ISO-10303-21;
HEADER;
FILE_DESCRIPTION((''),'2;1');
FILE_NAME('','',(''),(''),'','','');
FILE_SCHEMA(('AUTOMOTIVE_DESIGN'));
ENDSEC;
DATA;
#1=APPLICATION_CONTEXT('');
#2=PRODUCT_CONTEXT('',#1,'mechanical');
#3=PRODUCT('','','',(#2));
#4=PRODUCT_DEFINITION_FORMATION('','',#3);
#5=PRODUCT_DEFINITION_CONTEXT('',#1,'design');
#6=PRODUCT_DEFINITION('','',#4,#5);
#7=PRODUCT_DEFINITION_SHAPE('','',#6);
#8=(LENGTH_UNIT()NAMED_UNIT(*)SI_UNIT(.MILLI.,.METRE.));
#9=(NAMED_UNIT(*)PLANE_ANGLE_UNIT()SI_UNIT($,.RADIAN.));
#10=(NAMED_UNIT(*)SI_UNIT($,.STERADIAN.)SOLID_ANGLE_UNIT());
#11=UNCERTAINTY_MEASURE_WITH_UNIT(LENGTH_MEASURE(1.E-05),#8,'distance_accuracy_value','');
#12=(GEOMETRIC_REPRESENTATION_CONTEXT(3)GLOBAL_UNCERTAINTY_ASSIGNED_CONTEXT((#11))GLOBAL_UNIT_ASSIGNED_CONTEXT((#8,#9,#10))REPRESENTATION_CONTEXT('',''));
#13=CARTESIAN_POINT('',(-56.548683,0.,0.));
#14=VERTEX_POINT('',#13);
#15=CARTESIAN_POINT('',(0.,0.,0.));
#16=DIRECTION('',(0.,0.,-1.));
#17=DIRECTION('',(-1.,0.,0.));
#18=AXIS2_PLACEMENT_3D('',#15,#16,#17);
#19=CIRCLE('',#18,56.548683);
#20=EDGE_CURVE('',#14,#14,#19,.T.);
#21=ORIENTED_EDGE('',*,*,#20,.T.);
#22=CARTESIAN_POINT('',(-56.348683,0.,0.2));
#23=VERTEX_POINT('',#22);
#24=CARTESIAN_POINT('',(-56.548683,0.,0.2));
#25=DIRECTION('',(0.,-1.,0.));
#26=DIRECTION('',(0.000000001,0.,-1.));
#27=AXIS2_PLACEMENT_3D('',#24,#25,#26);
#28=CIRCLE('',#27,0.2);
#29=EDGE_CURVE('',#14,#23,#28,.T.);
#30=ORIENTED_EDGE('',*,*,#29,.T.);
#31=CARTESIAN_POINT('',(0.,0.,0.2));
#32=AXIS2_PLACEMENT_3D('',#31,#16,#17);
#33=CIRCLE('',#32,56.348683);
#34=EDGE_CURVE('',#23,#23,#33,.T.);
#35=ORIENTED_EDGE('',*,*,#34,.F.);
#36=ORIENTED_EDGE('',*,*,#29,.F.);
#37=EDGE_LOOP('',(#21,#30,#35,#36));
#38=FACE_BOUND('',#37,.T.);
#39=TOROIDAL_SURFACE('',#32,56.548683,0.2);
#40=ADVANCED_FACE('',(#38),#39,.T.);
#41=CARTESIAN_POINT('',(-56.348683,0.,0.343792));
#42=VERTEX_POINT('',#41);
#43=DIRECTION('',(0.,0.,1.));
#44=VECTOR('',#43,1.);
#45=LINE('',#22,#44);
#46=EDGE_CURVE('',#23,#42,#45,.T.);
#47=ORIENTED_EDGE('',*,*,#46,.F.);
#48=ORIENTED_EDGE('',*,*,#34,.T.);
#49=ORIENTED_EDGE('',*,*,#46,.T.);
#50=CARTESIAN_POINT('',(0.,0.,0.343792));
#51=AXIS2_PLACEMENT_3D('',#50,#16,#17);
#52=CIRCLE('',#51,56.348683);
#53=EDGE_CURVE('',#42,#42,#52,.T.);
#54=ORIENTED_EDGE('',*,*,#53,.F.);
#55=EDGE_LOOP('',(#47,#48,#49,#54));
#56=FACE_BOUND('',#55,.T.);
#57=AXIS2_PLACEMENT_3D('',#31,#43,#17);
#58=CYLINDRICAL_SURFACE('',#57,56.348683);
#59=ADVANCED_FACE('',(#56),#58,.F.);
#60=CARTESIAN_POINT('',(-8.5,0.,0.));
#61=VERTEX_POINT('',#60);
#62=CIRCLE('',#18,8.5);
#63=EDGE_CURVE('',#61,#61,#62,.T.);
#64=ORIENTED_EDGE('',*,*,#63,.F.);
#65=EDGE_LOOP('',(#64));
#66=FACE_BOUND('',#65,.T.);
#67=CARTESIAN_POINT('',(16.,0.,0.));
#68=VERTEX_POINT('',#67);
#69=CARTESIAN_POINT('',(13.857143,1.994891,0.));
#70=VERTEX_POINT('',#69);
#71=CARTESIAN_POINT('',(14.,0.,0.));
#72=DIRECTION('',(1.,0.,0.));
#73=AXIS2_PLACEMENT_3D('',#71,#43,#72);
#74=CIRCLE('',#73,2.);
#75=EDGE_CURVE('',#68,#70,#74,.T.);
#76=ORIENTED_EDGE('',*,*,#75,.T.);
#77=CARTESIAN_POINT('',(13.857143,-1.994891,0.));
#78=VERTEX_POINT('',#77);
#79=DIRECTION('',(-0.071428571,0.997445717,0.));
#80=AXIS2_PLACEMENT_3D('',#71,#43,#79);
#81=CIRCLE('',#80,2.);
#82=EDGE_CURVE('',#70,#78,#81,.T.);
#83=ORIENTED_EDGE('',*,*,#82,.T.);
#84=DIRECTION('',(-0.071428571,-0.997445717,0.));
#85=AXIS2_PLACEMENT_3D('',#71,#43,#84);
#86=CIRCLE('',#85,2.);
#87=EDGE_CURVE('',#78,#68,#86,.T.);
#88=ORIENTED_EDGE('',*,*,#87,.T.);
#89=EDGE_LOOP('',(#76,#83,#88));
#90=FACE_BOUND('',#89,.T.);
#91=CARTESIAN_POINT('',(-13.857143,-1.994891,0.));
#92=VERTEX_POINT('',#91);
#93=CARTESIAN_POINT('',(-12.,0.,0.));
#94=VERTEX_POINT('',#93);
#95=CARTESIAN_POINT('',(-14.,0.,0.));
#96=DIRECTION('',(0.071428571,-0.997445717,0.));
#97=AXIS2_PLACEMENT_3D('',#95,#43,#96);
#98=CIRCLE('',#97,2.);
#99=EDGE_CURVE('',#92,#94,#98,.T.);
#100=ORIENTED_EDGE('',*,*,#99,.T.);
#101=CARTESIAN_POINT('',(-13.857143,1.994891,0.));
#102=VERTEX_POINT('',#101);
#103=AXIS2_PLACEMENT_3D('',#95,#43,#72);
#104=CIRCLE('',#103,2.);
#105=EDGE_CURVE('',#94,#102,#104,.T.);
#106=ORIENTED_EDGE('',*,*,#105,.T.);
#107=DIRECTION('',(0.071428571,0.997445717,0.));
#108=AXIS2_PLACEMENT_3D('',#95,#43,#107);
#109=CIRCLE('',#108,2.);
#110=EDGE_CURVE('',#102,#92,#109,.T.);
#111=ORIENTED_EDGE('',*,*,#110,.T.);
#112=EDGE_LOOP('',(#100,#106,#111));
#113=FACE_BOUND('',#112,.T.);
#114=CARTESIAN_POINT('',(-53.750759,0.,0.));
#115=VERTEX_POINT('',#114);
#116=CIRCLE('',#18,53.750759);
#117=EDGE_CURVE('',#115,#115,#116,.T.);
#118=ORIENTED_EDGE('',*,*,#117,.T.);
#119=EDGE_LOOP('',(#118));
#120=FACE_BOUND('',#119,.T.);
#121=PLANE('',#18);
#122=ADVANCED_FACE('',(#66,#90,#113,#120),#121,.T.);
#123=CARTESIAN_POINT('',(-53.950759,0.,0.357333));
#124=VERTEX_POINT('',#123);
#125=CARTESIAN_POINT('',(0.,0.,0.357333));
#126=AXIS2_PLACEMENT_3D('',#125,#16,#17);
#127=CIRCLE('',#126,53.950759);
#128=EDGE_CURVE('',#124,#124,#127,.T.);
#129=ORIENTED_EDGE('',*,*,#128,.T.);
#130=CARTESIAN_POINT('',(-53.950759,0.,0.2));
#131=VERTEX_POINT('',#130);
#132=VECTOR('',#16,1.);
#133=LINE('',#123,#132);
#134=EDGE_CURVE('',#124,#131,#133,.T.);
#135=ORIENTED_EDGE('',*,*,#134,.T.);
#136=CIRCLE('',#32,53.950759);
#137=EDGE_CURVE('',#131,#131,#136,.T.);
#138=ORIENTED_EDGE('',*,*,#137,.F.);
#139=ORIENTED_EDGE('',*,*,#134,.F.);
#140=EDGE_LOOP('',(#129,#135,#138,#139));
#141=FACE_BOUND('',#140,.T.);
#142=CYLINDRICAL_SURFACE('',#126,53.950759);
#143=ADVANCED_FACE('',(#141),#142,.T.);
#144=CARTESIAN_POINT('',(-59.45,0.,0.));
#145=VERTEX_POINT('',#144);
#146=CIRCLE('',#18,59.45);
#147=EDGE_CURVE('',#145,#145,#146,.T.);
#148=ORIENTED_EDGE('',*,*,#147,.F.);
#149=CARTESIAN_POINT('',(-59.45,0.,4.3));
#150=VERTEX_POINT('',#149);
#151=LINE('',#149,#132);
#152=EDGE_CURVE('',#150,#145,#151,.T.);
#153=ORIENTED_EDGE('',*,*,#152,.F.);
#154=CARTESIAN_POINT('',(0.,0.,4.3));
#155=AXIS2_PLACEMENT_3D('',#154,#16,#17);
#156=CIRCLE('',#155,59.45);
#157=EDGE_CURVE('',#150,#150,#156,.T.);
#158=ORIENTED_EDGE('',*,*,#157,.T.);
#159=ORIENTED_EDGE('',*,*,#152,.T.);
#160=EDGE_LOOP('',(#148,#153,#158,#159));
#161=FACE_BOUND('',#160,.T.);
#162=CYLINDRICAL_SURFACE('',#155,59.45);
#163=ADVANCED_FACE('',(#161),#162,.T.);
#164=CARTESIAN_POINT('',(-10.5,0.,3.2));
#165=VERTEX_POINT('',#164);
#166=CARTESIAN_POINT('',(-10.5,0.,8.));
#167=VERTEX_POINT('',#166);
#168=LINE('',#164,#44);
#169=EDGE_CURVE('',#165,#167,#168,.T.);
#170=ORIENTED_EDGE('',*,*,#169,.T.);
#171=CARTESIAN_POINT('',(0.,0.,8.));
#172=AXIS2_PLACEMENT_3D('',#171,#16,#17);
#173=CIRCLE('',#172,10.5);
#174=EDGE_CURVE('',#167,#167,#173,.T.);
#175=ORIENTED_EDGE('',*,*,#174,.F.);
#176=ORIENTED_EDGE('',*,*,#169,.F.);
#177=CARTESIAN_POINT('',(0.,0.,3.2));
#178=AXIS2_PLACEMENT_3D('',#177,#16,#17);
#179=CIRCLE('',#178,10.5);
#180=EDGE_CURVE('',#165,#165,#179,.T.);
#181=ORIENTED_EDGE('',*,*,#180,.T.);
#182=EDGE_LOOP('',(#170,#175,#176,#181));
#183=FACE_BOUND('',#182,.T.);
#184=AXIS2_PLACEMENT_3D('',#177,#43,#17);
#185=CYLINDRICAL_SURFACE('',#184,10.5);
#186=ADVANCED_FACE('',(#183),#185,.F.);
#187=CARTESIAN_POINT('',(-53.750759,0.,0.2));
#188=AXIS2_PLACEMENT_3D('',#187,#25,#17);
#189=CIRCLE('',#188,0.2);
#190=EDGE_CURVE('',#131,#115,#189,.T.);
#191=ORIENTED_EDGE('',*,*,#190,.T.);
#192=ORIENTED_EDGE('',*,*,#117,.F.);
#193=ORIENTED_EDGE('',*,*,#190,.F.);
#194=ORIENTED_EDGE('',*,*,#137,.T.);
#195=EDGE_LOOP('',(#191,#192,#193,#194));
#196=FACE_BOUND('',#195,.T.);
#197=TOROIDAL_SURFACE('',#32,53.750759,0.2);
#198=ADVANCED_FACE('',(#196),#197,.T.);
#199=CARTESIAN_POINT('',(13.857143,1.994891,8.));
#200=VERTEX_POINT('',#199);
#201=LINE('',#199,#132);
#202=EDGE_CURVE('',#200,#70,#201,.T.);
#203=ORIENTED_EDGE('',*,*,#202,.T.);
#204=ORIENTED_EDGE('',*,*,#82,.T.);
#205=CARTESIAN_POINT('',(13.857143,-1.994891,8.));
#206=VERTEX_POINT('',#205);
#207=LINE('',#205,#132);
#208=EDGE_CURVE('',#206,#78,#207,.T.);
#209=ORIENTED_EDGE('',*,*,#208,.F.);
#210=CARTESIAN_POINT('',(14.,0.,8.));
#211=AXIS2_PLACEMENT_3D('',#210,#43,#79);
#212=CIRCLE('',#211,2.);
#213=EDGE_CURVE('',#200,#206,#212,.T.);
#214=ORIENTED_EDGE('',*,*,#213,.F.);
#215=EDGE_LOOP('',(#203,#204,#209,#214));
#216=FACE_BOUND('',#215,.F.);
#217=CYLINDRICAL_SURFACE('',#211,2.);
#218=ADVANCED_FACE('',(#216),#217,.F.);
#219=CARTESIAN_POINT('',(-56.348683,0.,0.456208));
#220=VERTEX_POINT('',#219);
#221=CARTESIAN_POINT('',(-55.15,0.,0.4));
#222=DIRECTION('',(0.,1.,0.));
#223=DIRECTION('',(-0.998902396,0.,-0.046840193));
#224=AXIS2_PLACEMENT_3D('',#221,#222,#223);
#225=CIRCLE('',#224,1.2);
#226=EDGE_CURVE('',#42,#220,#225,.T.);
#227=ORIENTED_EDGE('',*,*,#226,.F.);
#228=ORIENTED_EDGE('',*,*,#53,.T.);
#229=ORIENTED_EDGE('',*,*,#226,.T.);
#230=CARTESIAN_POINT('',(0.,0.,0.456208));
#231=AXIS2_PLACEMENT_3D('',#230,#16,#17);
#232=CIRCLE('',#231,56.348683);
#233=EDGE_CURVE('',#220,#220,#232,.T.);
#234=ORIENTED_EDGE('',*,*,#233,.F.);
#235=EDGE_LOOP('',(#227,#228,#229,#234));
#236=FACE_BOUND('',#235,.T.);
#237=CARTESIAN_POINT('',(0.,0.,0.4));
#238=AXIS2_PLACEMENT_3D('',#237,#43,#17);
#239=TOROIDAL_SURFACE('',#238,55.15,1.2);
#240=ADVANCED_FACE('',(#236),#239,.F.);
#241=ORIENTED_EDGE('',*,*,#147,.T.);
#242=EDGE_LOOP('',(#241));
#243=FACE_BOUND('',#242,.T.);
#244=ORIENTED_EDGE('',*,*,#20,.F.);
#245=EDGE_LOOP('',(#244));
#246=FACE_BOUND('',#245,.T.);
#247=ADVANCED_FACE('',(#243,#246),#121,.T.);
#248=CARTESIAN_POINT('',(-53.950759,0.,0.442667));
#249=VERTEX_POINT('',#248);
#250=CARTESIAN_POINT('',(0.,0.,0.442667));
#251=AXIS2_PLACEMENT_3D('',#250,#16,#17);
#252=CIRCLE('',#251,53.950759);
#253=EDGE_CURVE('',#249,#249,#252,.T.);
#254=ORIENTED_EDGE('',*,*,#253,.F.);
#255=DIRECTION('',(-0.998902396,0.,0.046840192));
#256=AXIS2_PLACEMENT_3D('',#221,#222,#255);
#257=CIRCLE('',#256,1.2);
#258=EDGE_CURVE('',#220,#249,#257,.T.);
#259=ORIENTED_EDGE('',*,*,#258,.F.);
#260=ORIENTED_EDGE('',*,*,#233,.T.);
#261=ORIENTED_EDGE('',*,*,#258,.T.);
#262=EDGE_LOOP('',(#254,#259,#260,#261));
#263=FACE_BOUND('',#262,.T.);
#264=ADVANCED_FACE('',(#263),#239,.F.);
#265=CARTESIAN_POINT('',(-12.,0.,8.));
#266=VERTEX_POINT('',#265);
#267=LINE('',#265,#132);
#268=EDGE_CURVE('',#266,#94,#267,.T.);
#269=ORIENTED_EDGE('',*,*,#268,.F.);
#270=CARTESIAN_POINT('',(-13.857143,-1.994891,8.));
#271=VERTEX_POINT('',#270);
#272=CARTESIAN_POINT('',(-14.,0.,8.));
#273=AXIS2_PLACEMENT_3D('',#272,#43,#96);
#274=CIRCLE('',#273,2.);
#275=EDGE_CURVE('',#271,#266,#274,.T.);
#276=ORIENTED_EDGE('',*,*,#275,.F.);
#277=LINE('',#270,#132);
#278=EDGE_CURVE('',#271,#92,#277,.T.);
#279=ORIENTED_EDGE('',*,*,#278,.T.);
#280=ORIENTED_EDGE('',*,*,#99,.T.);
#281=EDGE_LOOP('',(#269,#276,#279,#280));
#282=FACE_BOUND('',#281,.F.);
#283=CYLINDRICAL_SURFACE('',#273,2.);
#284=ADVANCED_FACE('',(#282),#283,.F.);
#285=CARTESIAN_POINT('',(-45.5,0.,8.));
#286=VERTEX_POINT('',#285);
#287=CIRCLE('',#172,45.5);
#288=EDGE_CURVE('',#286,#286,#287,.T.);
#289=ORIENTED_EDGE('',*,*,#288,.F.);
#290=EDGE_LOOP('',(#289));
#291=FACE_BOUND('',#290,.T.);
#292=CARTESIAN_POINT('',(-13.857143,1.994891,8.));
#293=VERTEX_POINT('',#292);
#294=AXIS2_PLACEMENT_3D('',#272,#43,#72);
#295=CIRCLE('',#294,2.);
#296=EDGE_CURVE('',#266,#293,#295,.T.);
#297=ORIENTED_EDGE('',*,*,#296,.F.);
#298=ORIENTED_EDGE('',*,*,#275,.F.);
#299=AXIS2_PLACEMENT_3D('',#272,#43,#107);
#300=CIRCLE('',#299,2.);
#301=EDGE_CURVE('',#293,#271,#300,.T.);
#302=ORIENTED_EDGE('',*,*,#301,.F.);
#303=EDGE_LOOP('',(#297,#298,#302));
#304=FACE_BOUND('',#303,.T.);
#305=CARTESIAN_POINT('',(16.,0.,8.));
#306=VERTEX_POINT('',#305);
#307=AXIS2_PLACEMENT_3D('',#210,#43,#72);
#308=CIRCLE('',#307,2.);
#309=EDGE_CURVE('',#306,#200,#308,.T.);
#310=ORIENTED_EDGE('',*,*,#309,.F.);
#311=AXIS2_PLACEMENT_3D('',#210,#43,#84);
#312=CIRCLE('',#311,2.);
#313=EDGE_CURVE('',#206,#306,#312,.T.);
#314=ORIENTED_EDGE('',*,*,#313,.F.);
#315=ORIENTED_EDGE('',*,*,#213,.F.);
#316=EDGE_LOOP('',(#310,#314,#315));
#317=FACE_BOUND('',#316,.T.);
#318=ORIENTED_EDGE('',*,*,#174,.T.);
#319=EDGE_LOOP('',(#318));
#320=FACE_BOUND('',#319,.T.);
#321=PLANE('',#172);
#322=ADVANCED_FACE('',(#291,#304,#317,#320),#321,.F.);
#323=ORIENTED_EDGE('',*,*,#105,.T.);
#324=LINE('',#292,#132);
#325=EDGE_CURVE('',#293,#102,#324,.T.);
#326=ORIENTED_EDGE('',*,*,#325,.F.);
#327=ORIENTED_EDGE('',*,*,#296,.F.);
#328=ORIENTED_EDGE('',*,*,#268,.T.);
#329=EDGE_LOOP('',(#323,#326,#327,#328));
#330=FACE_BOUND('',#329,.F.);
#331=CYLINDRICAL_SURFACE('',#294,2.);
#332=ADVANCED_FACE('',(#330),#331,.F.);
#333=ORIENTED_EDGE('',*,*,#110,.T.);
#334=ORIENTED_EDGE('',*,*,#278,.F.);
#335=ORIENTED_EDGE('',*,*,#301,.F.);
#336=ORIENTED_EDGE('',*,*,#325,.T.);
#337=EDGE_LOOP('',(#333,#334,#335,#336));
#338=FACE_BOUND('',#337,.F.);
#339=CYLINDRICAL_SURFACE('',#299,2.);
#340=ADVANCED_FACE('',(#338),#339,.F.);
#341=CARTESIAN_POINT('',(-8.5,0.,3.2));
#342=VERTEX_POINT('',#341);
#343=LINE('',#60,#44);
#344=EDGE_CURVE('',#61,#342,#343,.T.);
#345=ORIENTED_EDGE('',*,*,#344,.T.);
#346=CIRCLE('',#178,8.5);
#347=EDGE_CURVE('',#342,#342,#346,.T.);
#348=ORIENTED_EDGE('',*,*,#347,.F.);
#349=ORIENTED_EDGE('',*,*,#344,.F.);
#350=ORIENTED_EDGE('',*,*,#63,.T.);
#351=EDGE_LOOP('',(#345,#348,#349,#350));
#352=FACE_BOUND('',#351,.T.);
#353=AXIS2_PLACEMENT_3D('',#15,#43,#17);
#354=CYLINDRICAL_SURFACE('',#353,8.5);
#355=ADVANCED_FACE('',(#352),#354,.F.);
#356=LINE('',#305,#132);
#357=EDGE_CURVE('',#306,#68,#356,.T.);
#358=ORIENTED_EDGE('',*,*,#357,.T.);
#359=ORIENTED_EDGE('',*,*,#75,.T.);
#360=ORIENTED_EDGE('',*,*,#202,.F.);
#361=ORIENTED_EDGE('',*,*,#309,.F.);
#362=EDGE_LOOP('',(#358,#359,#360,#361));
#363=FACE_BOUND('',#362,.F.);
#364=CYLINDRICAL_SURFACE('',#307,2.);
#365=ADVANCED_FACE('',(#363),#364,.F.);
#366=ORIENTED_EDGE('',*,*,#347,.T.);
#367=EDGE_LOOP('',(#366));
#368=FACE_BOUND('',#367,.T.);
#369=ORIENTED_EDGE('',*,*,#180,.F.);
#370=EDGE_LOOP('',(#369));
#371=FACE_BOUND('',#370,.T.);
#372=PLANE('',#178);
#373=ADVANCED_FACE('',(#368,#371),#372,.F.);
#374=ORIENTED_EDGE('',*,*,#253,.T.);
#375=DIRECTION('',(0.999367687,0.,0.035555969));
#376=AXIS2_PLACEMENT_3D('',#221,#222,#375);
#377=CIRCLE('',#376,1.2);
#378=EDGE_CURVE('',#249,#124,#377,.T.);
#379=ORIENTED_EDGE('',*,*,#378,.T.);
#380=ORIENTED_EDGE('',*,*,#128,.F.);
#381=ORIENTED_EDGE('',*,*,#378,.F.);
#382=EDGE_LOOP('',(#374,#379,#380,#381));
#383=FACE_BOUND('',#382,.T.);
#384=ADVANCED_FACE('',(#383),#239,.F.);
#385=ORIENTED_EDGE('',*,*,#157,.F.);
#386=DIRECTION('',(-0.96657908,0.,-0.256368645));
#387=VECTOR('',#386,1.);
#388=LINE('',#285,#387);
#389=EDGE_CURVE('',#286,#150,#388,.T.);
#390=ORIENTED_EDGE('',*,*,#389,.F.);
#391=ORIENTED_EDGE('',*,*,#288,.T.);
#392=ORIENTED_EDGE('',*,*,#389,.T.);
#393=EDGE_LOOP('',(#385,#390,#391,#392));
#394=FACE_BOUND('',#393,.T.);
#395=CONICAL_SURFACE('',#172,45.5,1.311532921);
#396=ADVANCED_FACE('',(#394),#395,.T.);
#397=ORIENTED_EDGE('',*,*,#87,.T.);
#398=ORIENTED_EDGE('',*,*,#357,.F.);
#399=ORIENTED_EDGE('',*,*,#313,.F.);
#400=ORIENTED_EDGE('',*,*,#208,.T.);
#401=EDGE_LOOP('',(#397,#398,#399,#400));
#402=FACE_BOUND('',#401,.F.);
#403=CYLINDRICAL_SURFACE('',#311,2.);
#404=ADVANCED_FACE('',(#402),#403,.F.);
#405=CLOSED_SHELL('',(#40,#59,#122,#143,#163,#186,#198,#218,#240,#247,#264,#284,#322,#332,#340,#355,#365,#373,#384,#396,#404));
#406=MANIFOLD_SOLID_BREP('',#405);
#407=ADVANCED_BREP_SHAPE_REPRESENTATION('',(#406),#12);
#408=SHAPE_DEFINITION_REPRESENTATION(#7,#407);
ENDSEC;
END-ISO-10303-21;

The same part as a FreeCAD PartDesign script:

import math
import FreeCAD as App
import Part
import Sketcher
from FreeCAD import Vector

doc = App.newDocument("Part")
body = doc.addObject("PartDesign::Body", "Body")

sketch1 = body.newObject("Sketcher::SketchObject", "Sketch")
sketch1.AttachmentSupport = (doc.getObject("XZ_Plane"), [""])
sketch1.MapMode = "FlatFace"
sketch1.addGeometry(Part.LineSegment(Vector(-53.75, 0, 0), Vector(-8.5, 0, 0)), False)
sketch1.addGeometry(Part.LineSegment(Vector(-8.5, 0, 0), Vector(-8.5, 3.2, 0)), False)
sketch1.addGeometry(Part.LineSegment(Vector(-8.5, 3.2, 0), Vector(-10.5, 3.2, 0)), False)
sketch1.addGeometry(Part.LineSegment(Vector(-10.5, 3.2, 0), Vector(-10.5, 8, 0)), False)
sketch1.addGeometry(Part.LineSegment(Vector(-10.5, 8, 0), Vector(-45.5, 8, 0)), False)
sketch1.addGeometry(Part.LineSegment(Vector(-45.5, 8, 0), Vector(-59.45, 4.3, 0)), False)
sketch1.addGeometry(Part.LineSegment(Vector(-59.45, 4.3, 0), Vector(-59.45, 0, 0)), False)
sketch1.addGeometry(Part.LineSegment(Vector(-59.45, 0, 0), Vector(-56.55, 0, 0)), False)
sketch1.addGeometry(Part.ArcOfCircle(Part.Circle(Vector(-56.55, 0.2, 0), Vector(0, 0, 1), 0.2), math.radians(-90), math.radians(0)), False)
sketch1.addGeometry(Part.LineSegment(Vector(-56.35, 0.2, 0), Vector(-56.35, 0.34, 0)), False)
sketch1.addGeometry(Part.ArcOfCircle(Part.Circle(Vector(-55.15, 0.4, 0), Vector(0, 0, 1), 1.2), math.radians(177.32), math.radians(182.68)), False)
sketch1.addGeometry(Part.ArcOfCircle(Part.Circle(Vector(-55.15, 0.4, 0), Vector(0, 0, 1), 1.2), math.radians(2), math.radians(177)), False)
sketch1.addGeometry(Part.ArcOfCircle(Part.Circle(Vector(-55.15, 0.4, 0), Vector(0, 0, 1), 1.2), math.radians(-2.04), math.radians(2.04)), False)
sketch1.addGeometry(Part.LineSegment(Vector(-53.95, 0.36, 0), Vector(-53.95, 0.2, 0)), False)
sketch1.addGeometry(Part.ArcOfCircle(Part.Circle(Vector(-53.75, 0.2, 0), Vector(0, 0, 1), 0.2), math.radians(180), math.radians(270)), False)
sketch1.addConstraint(Sketcher.Constraint("Coincident", 0, 2, 1, 1))
sketch1.addConstraint(Sketcher.Constraint("Coincident", 1, 2, 2, 1))
sketch1.addConstraint(Sketcher.Constraint("Coincident", 2, 2, 3, 1))
sketch1.addConstraint(Sketcher.Constraint("Coincident", 3, 2, 4, 1))
sketch1.addConstraint(Sketcher.Constraint("Coincident", 4, 2, 5, 1))
sketch1.addConstraint(Sketcher.Constraint("Coincident", 5, 2, 6, 1))
sketch1.addConstraint(Sketcher.Constraint("Coincident", 6, 2, 7, 1))
sketch1.addConstraint(Sketcher.Constraint("Tangent", 7, 2, 8, 1))
sketch1.addConstraint(Sketcher.Constraint("Tangent", 8, 2, 9, 1))
sketch1.addConstraint(Sketcher.Constraint("Coincident", 9, 2, 10, 2))
sketch1.addConstraint(Sketcher.Constraint("Tangent", 10, 1, 11, 2))
sketch1.addConstraint(Sketcher.Constraint("Tangent", 11, 1, 12, 2))
sketch1.addConstraint(Sketcher.Constraint("Coincident", 12, 1, 13, 1))
sketch1.addConstraint(Sketcher.Constraint("Tangent", 13, 2, 14, 1))
sketch1.addConstraint(Sketcher.Constraint("Tangent", 14, 2, 0, 1))
sketch1.addConstraint(Sketcher.Constraint("Horizontal", 0))
sketch1.addConstraint(Sketcher.Constraint("Vertical", 1))
sketch1.addConstraint(Sketcher.Constraint("Horizontal", 2))
sketch1.addConstraint(Sketcher.Constraint("Vertical", 3))
sketch1.addConstraint(Sketcher.Constraint("Horizontal", 4))
sketch1.addConstraint(Sketcher.Constraint("Vertical", 6))
sketch1.addConstraint(Sketcher.Constraint("Horizontal", 7))
sketch1.addConstraint(Sketcher.Constraint("Vertical", 9))
sketch1.addConstraint(Sketcher.Constraint("Vertical", 13))
sketch1.addConstraint(Sketcher.Constraint("Coincident", 12, 3, 10, 3))
sketch1.addConstraint(Sketcher.Constraint("Equal", 8, 14))
sketch1.addConstraint(Sketcher.Constraint("PointOnObject", 0, 2, -1))
sketch1.addConstraint(Sketcher.Constraint("PointOnObject", 6, 2, -1))
sketch1.addConstraint(Sketcher.Constraint("Vertical", 9, 2, 10, 1))
sketch1.addConstraint(Sketcher.Constraint("Vertical", 11, 1, 12, 1))
sketch1.addConstraint(Sketcher.Constraint("Radius", 8, 0.2))
sketch1.addConstraint(Sketcher.Constraint("Radius", 10, 1.2))
sketch1.addConstraint(Sketcher.Constraint("DistanceX", 2, 2, 2, 1, 2.0))
sketch1.addConstraint(Sketcher.Constraint("DistanceX", 4, 2, 4, 1, 35.0))
sketch1.addConstraint(Sketcher.Constraint("DistanceY", 1, 1, 1, 2, 3.2))
sketch1.addConstraint(Sketcher.Constraint("DistanceY", 3, 1, 3, 2, 4.8))
sketch1.addConstraint(Sketcher.Constraint("DistanceY", 6, 2, 6, 1, 4.3))
sketch1.addConstraint(Sketcher.Constraint("DistanceY", -1, 1, 10, 3, 0.4))
sketch1.addConstraint(Sketcher.Constraint("DistanceX", 0, 2, -1, 1, 8.5))
sketch1.addConstraint(Sketcher.Constraint("DistanceX", 5, 2, 12, 3, 4.3))
sketch1.addConstraint(Sketcher.Constraint("DistanceX", 10, 3, -1, 1, 55.15))
sketch1.addConstraint(Sketcher.Constraint("DistanceX", 0, 1, 0, 2, 45.250759))
sketch1.addConstraint(Sketcher.Constraint("DistanceY", 9, 1, 9, 2, 0.143792))
revolution = body.newObject("PartDesign::Revolution", "Revolution")
revolution.Profile = sketch1
revolution.ReferenceAxis = (sketch1, ["V_Axis"])
revolution.Angle = 360

sketch2 = body.newObject("Sketcher::SketchObject", "Sketch001")
sketch2.AttachmentSupport = (doc.getObject("XY_Plane"), [""])
sketch2.MapMode = "FlatFace"
sketch2.AttachmentOffset = App.Placement(Vector(0, 0, 8), App.Rotation())
sketch2.addGeometry(Part.ArcOfCircle(Part.Circle(Vector(-14, 0, 0), Vector(0, 0, 1), 2), math.radians(86), math.radians(274)), False)
sketch2.addGeometry(Part.ArcOfCircle(Part.Circle(Vector(-14, 0, 0), Vector(0, 0, 1), 2), math.radians(-86), math.radians(0)), False)
sketch2.addGeometry(Part.ArcOfCircle(Part.Circle(Vector(-14, 0, 0), Vector(0, 0, 1), 2), math.radians(0), math.radians(86)), False)
sketch2.addGeometry(Part.ArcOfCircle(Part.Circle(Vector(14, 0, 0), Vector(0, 0, 1), 2), math.radians(94), math.radians(266)), False)
sketch2.addGeometry(Part.ArcOfCircle(Part.Circle(Vector(14, 0, 0), Vector(0, 0, 1), 2), math.radians(-94), math.radians(0)), False)
sketch2.addGeometry(Part.ArcOfCircle(Part.Circle(Vector(14, 0, 0), Vector(0, 0, 1), 2), math.radians(0), math.radians(94)), False)
sketch2.addConstraint(Sketcher.Constraint("Tangent", 0, 2, 1, 1))
sketch2.addConstraint(Sketcher.Constraint("Tangent", 1, 2, 2, 1))
sketch2.addConstraint(Sketcher.Constraint("Tangent", 2, 2, 0, 1))
sketch2.addConstraint(Sketcher.Constraint("Tangent", 3, 2, 4, 1))
sketch2.addConstraint(Sketcher.Constraint("Tangent", 4, 2, 5, 1))
sketch2.addConstraint(Sketcher.Constraint("Tangent", 5, 2, 3, 1))
sketch2.addConstraint(Sketcher.Constraint("Equal", 2, 3))
sketch2.addConstraint(Sketcher.Constraint("Symmetric", 0, 3, 3, 3, -1, 1))
sketch2.addConstraint(Sketcher.Constraint("Symmetric", 0, 2, 3, 2, -2))
sketch2.addConstraint(Sketcher.Constraint("PointOnObject", 1, 2, -1))
sketch2.addConstraint(Sketcher.Constraint("PointOnObject", 4, 2, -1))
sketch2.addConstraint(Sketcher.Constraint("Horizontal", 2, 2, 5, 2))
sketch2.addConstraint(Sketcher.Constraint("Vertical", 0, 2, 2, 2))
sketch2.addConstraint(Sketcher.Constraint("Radius", 0, 2.0))
sketch2.addConstraint(Sketcher.Constraint("DistanceX", 0, 3, -1, 1, 14.0))
sketch2.addConstraint(Sketcher.Constraint("DistanceY", 0, 2, -1, 1, 1.994891))
pocket1 = body.newObject("PartDesign::Pocket", "Pocket")
pocket1.Profile = sketch2
pocket1.Length = 25

doc.recompute()
